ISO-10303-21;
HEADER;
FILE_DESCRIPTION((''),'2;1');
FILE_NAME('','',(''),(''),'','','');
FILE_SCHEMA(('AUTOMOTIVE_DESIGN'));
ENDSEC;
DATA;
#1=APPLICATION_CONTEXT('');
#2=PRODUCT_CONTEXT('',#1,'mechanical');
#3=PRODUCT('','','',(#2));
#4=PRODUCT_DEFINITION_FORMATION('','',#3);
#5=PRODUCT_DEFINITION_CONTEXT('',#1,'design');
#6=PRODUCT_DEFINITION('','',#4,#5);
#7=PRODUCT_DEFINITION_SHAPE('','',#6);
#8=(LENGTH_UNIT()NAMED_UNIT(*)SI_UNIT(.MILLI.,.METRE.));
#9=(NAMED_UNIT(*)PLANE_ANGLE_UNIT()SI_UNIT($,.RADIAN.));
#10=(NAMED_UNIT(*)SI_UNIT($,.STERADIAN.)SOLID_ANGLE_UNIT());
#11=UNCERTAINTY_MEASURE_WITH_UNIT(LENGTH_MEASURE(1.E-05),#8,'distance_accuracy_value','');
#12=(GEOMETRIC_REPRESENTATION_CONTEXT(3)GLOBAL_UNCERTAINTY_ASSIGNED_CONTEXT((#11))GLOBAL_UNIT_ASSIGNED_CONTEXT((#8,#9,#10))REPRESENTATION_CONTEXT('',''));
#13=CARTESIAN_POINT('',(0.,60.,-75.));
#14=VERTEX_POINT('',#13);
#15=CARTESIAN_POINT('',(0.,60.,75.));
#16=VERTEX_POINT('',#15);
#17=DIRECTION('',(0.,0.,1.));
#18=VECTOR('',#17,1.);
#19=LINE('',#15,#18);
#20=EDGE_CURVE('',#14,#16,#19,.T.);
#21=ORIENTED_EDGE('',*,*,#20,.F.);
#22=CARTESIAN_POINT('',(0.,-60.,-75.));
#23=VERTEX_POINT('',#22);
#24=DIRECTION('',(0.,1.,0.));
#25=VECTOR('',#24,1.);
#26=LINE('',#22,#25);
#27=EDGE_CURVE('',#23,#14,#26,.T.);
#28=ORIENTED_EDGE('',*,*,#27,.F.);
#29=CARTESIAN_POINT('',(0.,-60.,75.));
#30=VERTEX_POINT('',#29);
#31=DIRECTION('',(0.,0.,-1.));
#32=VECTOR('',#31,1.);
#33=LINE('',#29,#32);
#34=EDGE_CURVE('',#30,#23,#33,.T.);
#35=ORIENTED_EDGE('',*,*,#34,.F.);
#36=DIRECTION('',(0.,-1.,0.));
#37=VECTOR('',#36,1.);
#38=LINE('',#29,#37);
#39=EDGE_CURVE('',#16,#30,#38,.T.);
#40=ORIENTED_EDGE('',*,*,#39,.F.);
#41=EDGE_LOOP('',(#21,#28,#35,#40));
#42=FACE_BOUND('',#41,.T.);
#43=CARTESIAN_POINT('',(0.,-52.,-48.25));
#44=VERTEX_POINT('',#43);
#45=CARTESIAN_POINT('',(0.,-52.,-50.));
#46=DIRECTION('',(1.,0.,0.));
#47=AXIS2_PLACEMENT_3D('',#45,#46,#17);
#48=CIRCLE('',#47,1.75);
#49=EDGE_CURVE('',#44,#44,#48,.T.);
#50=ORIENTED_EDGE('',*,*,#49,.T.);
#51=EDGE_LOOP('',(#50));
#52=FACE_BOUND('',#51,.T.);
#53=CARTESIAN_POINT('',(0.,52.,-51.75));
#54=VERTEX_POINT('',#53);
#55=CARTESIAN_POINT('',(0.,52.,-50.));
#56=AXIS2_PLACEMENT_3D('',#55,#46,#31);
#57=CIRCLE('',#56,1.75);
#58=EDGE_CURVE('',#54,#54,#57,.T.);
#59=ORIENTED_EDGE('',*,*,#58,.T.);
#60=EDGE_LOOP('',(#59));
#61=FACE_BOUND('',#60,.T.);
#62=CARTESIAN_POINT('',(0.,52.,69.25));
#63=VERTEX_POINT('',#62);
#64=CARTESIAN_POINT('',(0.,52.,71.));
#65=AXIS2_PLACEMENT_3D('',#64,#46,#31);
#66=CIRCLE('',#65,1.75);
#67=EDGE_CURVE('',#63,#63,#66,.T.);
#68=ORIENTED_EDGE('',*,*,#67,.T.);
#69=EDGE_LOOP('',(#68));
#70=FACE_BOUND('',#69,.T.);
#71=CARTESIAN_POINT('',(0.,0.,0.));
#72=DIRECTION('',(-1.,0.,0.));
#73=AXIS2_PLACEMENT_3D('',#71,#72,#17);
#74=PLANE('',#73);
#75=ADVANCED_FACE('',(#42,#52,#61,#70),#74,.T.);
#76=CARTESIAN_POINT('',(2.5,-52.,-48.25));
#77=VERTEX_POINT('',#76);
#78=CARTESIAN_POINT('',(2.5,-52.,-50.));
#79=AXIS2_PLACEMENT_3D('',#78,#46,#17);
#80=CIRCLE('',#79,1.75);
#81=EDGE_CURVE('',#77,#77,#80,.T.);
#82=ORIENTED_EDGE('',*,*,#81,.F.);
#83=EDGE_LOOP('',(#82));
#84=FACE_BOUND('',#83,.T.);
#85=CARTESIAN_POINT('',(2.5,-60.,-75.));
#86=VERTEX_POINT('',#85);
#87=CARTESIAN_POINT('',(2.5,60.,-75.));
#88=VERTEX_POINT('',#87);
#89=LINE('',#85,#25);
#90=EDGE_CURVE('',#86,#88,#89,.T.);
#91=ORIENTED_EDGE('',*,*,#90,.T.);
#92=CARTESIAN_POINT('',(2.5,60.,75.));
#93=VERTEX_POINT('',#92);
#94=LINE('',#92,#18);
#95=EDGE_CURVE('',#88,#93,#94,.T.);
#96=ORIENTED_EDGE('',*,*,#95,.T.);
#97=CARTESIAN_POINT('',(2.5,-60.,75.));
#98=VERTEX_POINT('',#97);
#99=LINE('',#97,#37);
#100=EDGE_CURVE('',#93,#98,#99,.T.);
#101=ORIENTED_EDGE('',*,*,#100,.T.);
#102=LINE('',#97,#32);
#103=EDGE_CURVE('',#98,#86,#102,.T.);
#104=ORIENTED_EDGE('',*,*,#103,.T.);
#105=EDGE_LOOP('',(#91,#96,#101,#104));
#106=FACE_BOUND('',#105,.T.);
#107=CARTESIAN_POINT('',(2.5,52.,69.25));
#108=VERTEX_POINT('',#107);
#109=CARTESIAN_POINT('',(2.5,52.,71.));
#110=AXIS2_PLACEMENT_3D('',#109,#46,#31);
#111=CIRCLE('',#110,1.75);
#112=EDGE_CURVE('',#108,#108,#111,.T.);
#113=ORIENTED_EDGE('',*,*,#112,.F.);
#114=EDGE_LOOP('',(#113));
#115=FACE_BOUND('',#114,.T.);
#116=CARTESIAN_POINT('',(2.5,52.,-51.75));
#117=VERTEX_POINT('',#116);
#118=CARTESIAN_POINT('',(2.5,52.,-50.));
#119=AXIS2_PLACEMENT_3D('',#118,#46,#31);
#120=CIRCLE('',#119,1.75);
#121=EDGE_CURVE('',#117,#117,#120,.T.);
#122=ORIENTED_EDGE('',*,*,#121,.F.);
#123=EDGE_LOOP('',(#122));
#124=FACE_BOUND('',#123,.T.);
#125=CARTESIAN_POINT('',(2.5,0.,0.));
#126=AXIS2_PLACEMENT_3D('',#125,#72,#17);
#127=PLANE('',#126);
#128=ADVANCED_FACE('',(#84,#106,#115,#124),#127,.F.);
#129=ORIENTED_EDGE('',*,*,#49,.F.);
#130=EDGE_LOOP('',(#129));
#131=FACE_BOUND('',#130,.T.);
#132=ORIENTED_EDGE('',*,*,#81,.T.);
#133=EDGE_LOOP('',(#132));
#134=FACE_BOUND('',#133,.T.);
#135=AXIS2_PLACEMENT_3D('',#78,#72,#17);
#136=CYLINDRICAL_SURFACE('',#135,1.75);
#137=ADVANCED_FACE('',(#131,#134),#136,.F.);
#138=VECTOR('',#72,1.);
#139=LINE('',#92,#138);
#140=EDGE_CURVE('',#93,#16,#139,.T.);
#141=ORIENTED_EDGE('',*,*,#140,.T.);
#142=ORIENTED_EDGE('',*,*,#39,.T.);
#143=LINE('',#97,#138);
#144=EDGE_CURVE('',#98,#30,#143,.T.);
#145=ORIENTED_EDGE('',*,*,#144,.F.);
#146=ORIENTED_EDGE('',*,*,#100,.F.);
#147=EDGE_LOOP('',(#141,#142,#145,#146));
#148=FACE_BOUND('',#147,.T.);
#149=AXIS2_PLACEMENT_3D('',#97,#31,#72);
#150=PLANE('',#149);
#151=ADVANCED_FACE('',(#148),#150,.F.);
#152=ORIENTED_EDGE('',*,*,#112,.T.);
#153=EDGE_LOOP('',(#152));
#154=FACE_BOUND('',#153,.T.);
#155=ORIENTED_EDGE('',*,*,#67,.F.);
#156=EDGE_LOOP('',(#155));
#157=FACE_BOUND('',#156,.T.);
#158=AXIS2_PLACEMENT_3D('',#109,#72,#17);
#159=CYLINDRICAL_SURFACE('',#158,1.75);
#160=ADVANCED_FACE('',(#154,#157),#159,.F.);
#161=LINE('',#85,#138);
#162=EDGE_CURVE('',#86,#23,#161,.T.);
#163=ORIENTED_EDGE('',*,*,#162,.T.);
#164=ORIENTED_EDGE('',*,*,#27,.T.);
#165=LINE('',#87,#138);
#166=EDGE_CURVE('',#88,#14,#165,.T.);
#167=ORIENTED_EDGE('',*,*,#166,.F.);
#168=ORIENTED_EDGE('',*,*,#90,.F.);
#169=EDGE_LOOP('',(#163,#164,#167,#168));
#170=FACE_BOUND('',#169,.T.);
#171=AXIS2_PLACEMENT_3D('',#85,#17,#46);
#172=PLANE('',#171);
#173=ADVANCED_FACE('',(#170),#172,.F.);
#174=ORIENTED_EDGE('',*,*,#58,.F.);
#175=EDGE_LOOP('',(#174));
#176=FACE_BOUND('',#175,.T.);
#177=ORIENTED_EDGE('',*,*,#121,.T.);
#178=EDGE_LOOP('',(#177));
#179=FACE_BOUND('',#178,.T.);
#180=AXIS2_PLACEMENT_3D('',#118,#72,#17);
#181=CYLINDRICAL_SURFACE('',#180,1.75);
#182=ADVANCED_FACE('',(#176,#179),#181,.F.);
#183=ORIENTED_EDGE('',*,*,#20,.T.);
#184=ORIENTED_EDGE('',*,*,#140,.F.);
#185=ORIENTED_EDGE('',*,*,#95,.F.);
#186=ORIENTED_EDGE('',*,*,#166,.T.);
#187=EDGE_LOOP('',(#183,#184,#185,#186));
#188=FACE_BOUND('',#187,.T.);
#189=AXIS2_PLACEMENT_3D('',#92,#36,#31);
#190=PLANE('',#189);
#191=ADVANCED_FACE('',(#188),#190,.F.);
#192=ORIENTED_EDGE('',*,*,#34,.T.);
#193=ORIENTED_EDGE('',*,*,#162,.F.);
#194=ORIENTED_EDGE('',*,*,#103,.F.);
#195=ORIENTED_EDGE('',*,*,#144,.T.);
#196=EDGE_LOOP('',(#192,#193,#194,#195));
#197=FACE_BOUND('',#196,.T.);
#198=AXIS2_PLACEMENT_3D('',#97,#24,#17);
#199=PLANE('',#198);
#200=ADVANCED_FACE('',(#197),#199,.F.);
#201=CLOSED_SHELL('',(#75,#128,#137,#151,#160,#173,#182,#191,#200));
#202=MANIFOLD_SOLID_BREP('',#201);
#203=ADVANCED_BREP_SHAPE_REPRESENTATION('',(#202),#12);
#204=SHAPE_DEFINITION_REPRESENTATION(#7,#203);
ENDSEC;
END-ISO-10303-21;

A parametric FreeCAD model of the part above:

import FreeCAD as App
import Part
import Sketcher
Q = App.Units.Quantity

doc = App.newDocument("Part")
params = doc.addObject("Spreadsheet::Sheet", "Params")
for row, (alias, value) in enumerate([
    ("sketch1_diameter", "3.5 mm"),
    ("sketch1_width", "120 mm"),
    ("sketch1_height", "150 mm"),
    ("pad1_length", "2.5 mm"),
], start=1):
    params.set(f"A{row}", alias)
    params.set(f"B{row}", "=" + value)
    params.setAlias(f"B{row}", alias)

body = doc.addObject("PartDesign::Body", "Body")

# Sketch on YZ plane
sketch1 = body.newObject("Sketcher::SketchObject", "Sketch")
sketch1.AttachmentSupport = (doc.getObject("YZ_Plane"), [""])
sketch1.MapMode = "FlatFace"
sketch1.addGeometry([
    Part.LineSegment(App.Vector(60, 75, 0), App.Vector(-60, 75, 0)),  # 0
    Part.LineSegment(App.Vector(-60, 75, 0), App.Vector(-60, -75, 0)),  # 1
    Part.LineSegment(App.Vector(-60, -75, 0), App.Vector(60, -75, 0)),  # 2
    Part.LineSegment(App.Vector(60, -75, 0), App.Vector(60, 75, 0)),  # 3
    Part.Circle(App.Vector(-52, -50, 0), App.Vector(0, 0, 1), 1.8),  # 4
    Part.Circle(App.Vector(52, 71, 0), App.Vector(0, 0, 1), 1.8),  # 5
    Part.Circle(App.Vector(52, -50, 0), App.Vector(0, 0, 1), 1.8),  # 6
], False)
sketch1.addConstraint([
    Sketcher.Constraint("Coincident", 0, 2, 1, 1),
    Sketcher.Constraint("Coincident", 1, 2, 2, 1),
    Sketcher.Constraint("Coincident", 2, 2, 3, 1),
    Sketcher.Constraint("Coincident", 3, 2, 0, 1),
    Sketcher.Constraint("Horizontal", 0),
    Sketcher.Constraint("Vertical", 1),
    Sketcher.Constraint("Horizontal", 2),
    Sketcher.Constraint("Vertical", 3),
    Sketcher.Constraint("Equal", 4, 5),
    Sketcher.Constraint("Equal", 5, 6),
    Sketcher.Constraint("Symmetric", 0, 2, 2, 2, -1, 1),
    Sketcher.Constraint("Symmetric", 4, 3, 6, 3, -2),
    Sketcher.Constraint("Vertical", 5, 3, 6, 3),
    Sketcher.Constraint("Diameter", 4, Q("3.5 mm")),
    Sketcher.Constraint("DistanceX", 0, 2, 0, 1, Q("120 mm")),
    Sketcher.Constraint("DistanceY", 1, 2, 1, 1, Q("150 mm")),
    Sketcher.Constraint("DistanceX", 4, 3, -1, 1, Q("52 mm")),
    Sketcher.Constraint("DistanceY", 4, 3, -1, 1, Q("50 mm")),
    Sketcher.Constraint("DistanceY", -1, 1, 5, 3, Q("71 mm")),
])
sketch1.setExpression("Constraints[13]", "Params.sketch1_diameter")
sketch1.setExpression("Constraints[14]", "Params.sketch1_width")
sketch1.setExpression("Constraints[15]", "Params.sketch1_height")
pad1 = body.newObject("PartDesign::Pad", "Pad")
pad1.Profile = sketch1
pad1.setExpression("Length", "Params.pad1_length")

doc.recompute()
